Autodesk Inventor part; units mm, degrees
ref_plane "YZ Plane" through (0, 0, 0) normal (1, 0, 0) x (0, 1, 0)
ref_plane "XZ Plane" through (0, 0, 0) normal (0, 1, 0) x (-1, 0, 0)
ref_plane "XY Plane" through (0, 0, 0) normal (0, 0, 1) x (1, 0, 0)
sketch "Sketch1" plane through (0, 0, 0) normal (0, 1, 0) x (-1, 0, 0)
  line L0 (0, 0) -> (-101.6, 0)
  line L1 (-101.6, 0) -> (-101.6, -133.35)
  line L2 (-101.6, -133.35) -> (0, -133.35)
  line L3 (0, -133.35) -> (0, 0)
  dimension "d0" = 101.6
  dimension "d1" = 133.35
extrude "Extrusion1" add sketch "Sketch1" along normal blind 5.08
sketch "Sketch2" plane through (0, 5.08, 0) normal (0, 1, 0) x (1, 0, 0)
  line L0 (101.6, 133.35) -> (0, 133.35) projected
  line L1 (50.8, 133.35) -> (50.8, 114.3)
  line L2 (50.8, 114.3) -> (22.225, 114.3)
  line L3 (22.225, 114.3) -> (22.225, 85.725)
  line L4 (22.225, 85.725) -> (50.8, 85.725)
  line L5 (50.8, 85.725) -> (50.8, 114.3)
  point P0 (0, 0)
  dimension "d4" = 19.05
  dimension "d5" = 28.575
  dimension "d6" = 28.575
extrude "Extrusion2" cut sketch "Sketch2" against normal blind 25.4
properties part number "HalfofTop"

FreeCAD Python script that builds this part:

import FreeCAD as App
import Part
import Sketcher
Q = App.Units.Quantity

doc = App.newDocument("Part")
params = doc.addObject("Spreadsheet::Sheet", "Params")
for row, (alias, value) in enumerate([
    ("sketch1_width", "4 in"),
    ("sketch1_height", "5.25 in"),
    ("pad1_length", "0.2 in"),
    ("sketch2_width", "1.125 in"),
    ("pocket1_length", "1 in"),
], start=1):
    params.set(f"A{row}", alias)
    params.set(f"B{row}", "=" + value)
    params.setAlias(f"B{row}", alias)

body = doc.addObject("PartDesign::Body", "Body")

sketch1 = body.newObject("Sketcher::SketchObject", "Sketch")
sketch1.AttachmentSupport = (doc.getObject("XZ_Plane"), [""])
sketch1.MapMode = "FlatFace"
sketch1.addGeometry([
    Part.LineSegment(App.Vector(0, -133.35, 0), App.Vector(0, 0, 0)),
    Part.LineSegment(App.Vector(0, 0, 0), App.Vector(101.6, 0, 0)),
    Part.LineSegment(App.Vector(101.6, 0, 0), App.Vector(101.6, -133.35, 0)),
    Part.LineSegment(App.Vector(101.6, -133.35, 0), App.Vector(0, -133.35, 0)),
], False)
sketch1.addConstraint([
    Sketcher.Constraint("Coincident", 0, 2, 1, 1),
    Sketcher.Constraint("Coincident", 1, 2, 2, 1),
    Sketcher.Constraint("Coincident", 2, 2, 3, 1),
    Sketcher.Constraint("Coincident", 3, 2, 0, 1),
    Sketcher.Constraint("Vertical", 0),
    Sketcher.Constraint("Horizontal", 1),
    Sketcher.Constraint("Vertical", 2),
    Sketcher.Constraint("Horizontal", 3),
    Sketcher.Constraint("Coincident", 0, 2, -1, 1),
    Sketcher.Constraint("DistanceX", 1, 1, 1, 2, Q("4 in")),
    Sketcher.Constraint("DistanceY", 0, 1, 0, 2, Q("5.25 in")),
])
sketch1.setExpression("Constraints[9]", "Params.sketch1_width")
sketch1.setExpression("Constraints[10]", "Params.sketch1_height")
pad1 = body.newObject("PartDesign::Pad", "Pad")
pad1.Profile = sketch1
pad1.setExpression("Length", "Params.pad1_length")
pad1.Reversed = True

sketch2 = body.newObject("Sketcher::SketchObject", "Sketch001")
sketch2.AttachmentSupport = (doc.getObject("XZ_Plane"), [""])
sketch2.MapMode = "FlatFace"
sketch2.AttachmentOffset = App.Placement(App.Vector(0, 0, -0.2 * 25.4), App.Rotation())
sketch2.addGeometry([
    Part.LineSegment(App.Vector(50.8, -85.725, 0), App.Vector(50.8, -114.3, 0)),
    Part.LineSegment(App.Vector(50.8, -114.3, 0), App.Vector(22.225, -114.3, 0)),
    Part.LineSegment(App.Vector(22.225, -114.3, 0), App.Vector(22.225, -85.725, 0)),
    Part.LineSegment(App.Vector(22.225, -85.725, 0), App.Vector(50.8, -85.725, 0)),
], False)
sketch2.addConstraint([
    Sketcher.Constraint("Coincident", 0, 2, 1, 1),
    Sketcher.Constraint("Coincident", 1, 2, 2, 1),
    Sketcher.Constraint("Coincident", 2, 2, 3, 1),
    Sketcher.Constraint("Coincident", 3, 2, 0, 1),
    Sketcher.Constraint("Vertical", 0),
    Sketcher.Constraint("Horizontal", 1),
    Sketcher.Constraint("Vertical", 2),
    Sketcher.Constraint("Horizontal", 3),
    Sketcher.Constraint("Equal", 3, 0),
    Sketcher.Constraint("DistanceX", 1, 2, 1, 1, Q("1.125 in")),
    Sketcher.Constraint("DistanceX", -1, 1, 0, 2, Q("2 in")),
    Sketcher.Constraint("DistanceY", 0, 2, -1, 1, Q("4.5 in")),
])
sketch2.setExpression("Constraints[9]", "Params.sketch2_width")
pocket1 = body.newObject("PartDesign::Pocket", "Pocket")
pocket1.Profile = sketch2
pocket1.setExpression("Length", "Params.pocket1_length")
pocket1.Reversed = True

doc.recompute()
